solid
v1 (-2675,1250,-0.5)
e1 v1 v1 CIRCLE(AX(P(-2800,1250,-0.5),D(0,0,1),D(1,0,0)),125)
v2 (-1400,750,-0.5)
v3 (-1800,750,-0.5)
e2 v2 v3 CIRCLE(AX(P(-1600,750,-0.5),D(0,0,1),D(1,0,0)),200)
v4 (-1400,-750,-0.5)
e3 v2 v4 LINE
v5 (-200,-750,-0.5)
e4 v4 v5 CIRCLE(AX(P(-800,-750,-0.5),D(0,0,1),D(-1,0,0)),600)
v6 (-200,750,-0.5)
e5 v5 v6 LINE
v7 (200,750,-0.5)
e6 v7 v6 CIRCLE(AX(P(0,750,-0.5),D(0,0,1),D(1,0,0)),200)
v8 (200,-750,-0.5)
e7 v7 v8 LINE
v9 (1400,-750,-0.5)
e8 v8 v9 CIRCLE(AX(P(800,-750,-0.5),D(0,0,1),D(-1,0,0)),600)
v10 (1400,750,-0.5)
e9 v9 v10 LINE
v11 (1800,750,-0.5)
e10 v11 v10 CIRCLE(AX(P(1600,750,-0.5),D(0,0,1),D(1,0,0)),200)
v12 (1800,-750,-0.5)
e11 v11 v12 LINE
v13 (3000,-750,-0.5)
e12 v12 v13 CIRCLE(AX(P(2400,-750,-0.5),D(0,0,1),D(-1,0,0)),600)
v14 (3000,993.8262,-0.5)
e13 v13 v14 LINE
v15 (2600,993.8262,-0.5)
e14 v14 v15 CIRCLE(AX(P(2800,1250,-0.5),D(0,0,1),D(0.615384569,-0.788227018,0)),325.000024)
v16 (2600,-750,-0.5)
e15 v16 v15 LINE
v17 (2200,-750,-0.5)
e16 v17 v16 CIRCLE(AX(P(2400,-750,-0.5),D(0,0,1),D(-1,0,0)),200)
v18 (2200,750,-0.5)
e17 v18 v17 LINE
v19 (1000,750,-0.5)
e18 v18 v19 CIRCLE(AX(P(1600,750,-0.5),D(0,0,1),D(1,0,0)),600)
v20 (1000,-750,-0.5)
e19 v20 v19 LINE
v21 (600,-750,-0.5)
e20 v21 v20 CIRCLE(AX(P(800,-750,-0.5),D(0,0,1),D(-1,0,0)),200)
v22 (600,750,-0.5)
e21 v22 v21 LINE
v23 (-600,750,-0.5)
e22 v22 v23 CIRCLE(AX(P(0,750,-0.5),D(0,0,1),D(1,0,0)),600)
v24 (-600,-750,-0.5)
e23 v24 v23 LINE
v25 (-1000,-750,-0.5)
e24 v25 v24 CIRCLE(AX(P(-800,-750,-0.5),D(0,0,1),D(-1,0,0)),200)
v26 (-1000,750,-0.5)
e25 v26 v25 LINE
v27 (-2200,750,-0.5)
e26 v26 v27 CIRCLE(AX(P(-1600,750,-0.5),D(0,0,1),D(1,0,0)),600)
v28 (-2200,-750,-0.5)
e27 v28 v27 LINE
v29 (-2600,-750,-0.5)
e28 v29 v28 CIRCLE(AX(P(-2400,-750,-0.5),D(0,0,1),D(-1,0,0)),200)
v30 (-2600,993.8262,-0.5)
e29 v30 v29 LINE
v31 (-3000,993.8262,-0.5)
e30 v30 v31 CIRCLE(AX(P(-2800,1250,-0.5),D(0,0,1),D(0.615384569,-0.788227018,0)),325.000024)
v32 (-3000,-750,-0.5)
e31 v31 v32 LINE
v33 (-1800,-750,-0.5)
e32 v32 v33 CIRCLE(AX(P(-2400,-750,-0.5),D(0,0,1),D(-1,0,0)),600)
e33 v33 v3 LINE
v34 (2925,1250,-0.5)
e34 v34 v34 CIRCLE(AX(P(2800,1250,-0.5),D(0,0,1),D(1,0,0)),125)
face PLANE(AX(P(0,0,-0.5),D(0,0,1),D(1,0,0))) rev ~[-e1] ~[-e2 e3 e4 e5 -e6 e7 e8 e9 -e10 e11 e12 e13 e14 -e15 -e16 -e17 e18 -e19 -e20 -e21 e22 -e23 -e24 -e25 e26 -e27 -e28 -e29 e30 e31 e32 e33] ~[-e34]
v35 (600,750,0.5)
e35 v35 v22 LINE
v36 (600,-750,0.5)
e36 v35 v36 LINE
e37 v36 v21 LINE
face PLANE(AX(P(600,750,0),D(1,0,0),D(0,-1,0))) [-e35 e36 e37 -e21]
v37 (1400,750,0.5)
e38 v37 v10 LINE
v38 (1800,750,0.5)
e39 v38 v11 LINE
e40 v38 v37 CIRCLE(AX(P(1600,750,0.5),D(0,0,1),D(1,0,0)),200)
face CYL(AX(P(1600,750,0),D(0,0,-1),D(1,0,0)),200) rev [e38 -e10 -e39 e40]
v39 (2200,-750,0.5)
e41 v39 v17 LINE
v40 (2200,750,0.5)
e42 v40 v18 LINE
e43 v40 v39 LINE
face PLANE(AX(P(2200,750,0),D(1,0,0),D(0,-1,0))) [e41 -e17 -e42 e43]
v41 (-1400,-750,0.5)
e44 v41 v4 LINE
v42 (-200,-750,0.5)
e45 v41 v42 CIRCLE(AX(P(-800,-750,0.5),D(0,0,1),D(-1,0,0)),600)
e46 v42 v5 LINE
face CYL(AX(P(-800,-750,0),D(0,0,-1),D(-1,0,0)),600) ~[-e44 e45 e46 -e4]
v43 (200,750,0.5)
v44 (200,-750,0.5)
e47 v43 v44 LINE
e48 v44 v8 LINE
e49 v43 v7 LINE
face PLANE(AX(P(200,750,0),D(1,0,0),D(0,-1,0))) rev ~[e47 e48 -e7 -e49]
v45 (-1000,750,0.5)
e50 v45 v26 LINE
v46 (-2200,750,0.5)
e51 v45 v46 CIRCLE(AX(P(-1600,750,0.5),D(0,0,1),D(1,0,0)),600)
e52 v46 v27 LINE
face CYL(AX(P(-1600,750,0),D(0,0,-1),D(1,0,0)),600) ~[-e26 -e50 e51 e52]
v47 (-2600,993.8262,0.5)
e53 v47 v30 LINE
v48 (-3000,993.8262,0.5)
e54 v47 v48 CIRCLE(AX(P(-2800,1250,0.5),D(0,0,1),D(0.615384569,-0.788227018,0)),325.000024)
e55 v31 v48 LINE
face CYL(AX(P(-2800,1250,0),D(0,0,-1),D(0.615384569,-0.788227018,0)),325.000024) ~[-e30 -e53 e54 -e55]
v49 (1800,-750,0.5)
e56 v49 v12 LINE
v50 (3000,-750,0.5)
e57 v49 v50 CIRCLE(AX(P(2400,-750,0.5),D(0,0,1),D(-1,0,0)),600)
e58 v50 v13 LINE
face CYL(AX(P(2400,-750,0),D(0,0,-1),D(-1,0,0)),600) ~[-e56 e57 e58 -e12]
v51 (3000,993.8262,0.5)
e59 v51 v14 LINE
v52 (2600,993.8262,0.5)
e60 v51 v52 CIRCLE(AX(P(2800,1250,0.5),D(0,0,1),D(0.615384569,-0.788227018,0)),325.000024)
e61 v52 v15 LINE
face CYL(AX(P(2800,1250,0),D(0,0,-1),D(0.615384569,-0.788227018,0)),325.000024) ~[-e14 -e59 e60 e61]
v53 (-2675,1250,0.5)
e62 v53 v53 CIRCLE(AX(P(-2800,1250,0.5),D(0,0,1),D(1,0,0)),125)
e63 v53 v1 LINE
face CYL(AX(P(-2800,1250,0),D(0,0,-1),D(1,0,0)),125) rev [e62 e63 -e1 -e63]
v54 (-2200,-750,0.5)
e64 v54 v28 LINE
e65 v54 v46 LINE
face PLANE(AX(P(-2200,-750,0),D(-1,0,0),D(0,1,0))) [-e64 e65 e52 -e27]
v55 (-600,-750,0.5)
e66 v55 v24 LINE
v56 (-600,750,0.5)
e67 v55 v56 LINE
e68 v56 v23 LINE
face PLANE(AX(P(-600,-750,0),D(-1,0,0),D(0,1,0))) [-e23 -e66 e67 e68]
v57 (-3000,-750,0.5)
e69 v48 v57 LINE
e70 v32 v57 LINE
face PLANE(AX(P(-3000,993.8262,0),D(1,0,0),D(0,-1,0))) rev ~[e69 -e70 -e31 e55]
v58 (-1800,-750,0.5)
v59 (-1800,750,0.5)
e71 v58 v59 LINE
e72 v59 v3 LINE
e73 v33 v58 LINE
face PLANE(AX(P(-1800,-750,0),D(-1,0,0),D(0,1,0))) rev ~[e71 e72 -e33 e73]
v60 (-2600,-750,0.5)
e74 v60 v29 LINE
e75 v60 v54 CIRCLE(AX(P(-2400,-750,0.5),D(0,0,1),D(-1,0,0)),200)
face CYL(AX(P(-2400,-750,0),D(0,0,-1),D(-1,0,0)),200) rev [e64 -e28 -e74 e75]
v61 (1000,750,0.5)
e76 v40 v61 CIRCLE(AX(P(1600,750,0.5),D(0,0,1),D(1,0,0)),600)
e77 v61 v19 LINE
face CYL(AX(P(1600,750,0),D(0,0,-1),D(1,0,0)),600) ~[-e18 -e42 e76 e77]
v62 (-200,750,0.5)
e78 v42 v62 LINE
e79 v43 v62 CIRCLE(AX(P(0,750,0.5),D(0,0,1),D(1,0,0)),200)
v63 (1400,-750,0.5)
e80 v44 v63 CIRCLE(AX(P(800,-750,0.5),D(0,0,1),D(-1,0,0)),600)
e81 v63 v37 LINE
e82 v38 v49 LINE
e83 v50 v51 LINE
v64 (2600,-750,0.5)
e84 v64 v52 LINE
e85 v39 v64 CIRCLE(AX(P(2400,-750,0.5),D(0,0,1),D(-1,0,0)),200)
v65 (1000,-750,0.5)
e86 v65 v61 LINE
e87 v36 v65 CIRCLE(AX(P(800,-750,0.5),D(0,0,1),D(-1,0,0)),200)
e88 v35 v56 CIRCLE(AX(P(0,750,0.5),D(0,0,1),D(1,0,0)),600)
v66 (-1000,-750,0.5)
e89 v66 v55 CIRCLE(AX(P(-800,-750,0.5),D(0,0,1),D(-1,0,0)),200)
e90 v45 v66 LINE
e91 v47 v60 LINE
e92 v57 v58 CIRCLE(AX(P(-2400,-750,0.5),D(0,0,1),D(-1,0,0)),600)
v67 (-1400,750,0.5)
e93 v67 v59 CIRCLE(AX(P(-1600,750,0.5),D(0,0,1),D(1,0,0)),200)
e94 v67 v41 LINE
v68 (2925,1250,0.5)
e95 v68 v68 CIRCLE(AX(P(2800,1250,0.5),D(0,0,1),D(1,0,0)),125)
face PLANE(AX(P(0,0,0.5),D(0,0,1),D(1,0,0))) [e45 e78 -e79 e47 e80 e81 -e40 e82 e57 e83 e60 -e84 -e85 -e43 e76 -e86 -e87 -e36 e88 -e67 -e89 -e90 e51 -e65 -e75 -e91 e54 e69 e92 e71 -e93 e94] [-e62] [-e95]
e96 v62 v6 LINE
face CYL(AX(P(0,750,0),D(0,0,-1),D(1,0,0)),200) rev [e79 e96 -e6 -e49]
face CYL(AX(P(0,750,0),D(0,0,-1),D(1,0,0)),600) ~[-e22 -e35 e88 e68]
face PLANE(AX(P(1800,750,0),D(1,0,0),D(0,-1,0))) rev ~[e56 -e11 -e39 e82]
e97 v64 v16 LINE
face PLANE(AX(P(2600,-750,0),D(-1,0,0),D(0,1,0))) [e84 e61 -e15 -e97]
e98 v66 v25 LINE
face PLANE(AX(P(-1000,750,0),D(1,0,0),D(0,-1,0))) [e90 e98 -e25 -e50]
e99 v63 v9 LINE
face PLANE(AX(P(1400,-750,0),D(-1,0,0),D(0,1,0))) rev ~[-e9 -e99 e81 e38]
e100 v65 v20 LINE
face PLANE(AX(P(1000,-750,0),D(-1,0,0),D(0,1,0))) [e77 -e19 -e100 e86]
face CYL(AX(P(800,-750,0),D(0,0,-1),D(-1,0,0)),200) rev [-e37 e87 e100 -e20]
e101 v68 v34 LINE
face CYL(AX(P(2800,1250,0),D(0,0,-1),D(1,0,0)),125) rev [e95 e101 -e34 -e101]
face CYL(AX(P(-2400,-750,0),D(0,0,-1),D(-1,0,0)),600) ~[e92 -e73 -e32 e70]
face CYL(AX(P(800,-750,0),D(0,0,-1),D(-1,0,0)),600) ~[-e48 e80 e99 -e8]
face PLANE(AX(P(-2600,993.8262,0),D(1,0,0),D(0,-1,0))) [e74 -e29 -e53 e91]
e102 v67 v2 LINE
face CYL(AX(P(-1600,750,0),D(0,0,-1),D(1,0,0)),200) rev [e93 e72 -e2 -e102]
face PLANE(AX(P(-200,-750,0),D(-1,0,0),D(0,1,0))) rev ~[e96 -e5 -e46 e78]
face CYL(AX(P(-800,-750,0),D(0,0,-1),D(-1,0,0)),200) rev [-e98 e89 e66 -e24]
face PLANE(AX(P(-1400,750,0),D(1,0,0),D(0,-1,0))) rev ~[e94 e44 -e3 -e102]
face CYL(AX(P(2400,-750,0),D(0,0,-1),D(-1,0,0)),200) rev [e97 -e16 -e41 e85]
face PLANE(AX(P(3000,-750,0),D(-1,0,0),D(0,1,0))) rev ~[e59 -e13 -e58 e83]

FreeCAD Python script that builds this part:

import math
import FreeCAD as App
import Part
import Sketcher

doc = App.newDocument("Part")
body = doc.addObject("PartDesign::Body", "Body")

# Sketch on XY plane
sketch1 = body.newObject("Sketcher::SketchObject", "Sketch")
sketch1.AttachmentSupport = (doc.getObject("XY_Plane"), [""])
sketch1.MapMode = "FlatFace"
sketch1.addGeometry(Part.ArcOfCircle(Part.Circle(App.Vector(-2800, 1250, 0), App.Vector(0, 0, 1), 325), math.radians(-52), math.radians(232)), False)
sketch1.addGeometry(Part.LineSegment(App.Vector(-3000, 994, 0), App.Vector(-3000, -750, 0)), False)
sketch1.addGeometry(Part.ArcOfCircle(Part.Circle(App.Vector(-2400, -750, 0), App.Vector(0, 0, 1), 600), math.radians(180), math.radians(360)), False)
sketch1.addGeometry(Part.LineSegment(App.Vector(-1800, -750, 0), App.Vector(-1800, 750, 0)), False)
sketch1.addGeometry(Part.ArcOfCircle(Part.Circle(App.Vector(-1600, 750, 0), App.Vector(0, 0, 1), 200), math.radians(0), math.radians(180)), False)
sketch1.addGeometry(Part.LineSegment(App.Vector(-1400, 750, 0), App.Vector(-1400, -750, 0)), False)
sketch1.addGeometry(Part.ArcOfCircle(Part.Circle(App.Vector(-800, -750, 0), App.Vector(0, 0, 1), 600), math.radians(180), math.radians(360)), False)
sketch1.addGeometry(Part.LineSegment(App.Vector(-200, -750, 0), App.Vector(-200, 750, 0)), False)
sketch1.addGeometry(Part.ArcOfCircle(Part.Circle(App.Vector(0, 750, 0), App.Vector(0, 0, 1), 200), math.radians(0), math.radians(180)), False)
sketch1.addGeometry(Part.LineSegment(App.Vector(200, 750, 0), App.Vector(200, -750, 0)), False)
sketch1.addGeometry(Part.ArcOfCircle(Part.Circle(App.Vector(800, -750, 0), App.Vector(0, 0, 1), 600), math.radians(180), math.radians(360)), False)
sketch1.addGeometry(Part.LineSegment(App.Vector(1400, -750, 0), App.Vector(1400, 750, 0)), False)
sketch1.addGeometry(Part.ArcOfCircle(Part.Circle(App.Vector(1600, 750, 0), App.Vector(0, 0, 1), 200), math.radians(0), math.radians(180)), False)
sketch1.addGeometry(Part.LineSegment(App.Vector(1800, 750, 0), App.Vector(1800, -750, 0)), False)
sketch1.addGeometry(Part.ArcOfCircle(Part.Circle(App.Vector(2400, -750, 0), App.Vector(0, 0, 1), 600), math.radians(180), math.radians(360)), False)
sketch1.addGeometry(Part.LineSegment(App.Vector(3000, -750, 0), App.Vector(3000, 994, 0)), False)
sketch1.addGeometry(Part.ArcOfCircle(Part.Circle(App.Vector(2800, 1250, 0), App.Vector(0, 0, 1), 325), math.radians(-52), math.radians(232)), False)
sketch1.addGeometry(Part.LineSegment(App.Vector(2600, 994, 0), App.Vector(2600, -750, 0)), False)
sketch1.addGeometry(Part.ArcOfCircle(Part.Circle(App.Vector(2400, -750, 0), App.Vector(0, 0, 1), 200), math.radians(180), math.radians(360)), False)
sketch1.addGeometry(Part.LineSegment(App.Vector(2200, -750, 0), App.Vector(2200, 750, 0)), False)
sketch1.addGeometry(Part.ArcOfCircle(Part.Circle(App.Vector(1600, 750, 0), App.Vector(0, 0, 1), 600), math.radians(0), math.radians(180)), False)
sketch1.addGeometry(Part.LineSegment(App.Vector(1000, 750, 0), App.Vector(1000, -750, 0)), False)
sketch1.addGeometry(Part.ArcOfCircle(Part.Circle(App.Vector(800, -750, 0), App.Vector(0, 0, 1), 200), math.radians(180), math.radians(360)), False)
sketch1.addGeometry(Part.LineSegment(App.Vector(600, -750, 0), App.Vector(600, 750, 0)), False)
sketch1.addGeometry(Part.ArcOfCircle(Part.Circle(App.Vector(0, 750, 0), App.Vector(0, 0, 1), 600), math.radians(0), math.radians(180)), False)
sketch1.addGeometry(Part.LineSegment(App.Vector(-600, 750, 0), App.Vector(-600, -750, 0)), False)
sketch1.addGeometry(Part.ArcOfCircle(Part.Circle(App.Vector(-800, -750, 0), App.Vector(0, 0, 1), 200), math.radians(180), math.radians(360)), False)
sketch1.addGeometry(Part.LineSegment(App.Vector(-1000, -750, 0), App.Vector(-1000, 750, 0)), False)
sketch1.addGeometry(Part.ArcOfCircle(Part.Circle(App.Vector(-1600, 750, 0), App.Vector(0, 0, 1), 600), math.radians(0), math.radians(180)), False)
sketch1.addGeometry(Part.LineSegment(App.Vector(-2200, 750, 0), App.Vector(-2200, -750, 0)), False)
sketch1.addGeometry(Part.ArcOfCircle(Part.Circle(App.Vector(-2400, -750, 0), App.Vector(0, 0, 1), 200), math.radians(180), math.radians(360)), False)
sketch1.addGeometry(Part.LineSegment(App.Vector(-2600, -750, 0), App.Vector(-2600, 994, 0)), False)
sketch1.addGeometry(Part.Circle(App.Vector(-2800, 1250, 0), App.Vector(0, 0, 1), 125), False)
sketch1.addGeometry(Part.Circle(App.Vector(2800, 1250, 0), App.Vector(0, 0, 1), 125), False)
sketch1.addConstraint(Sketcher.Constraint("Coincident", 0, 2, 1, 1))
sketch1.addConstraint(Sketcher.Constraint("Tangent", 1, 2, 2, 1))
sketch1.addConstraint(Sketcher.Constraint("Tangent", 2, 2, 3, 1))
sketch1.addConstraint(Sketcher.Constraint("Tangent", 3, 2, 4, 2))
sketch1.addConstraint(Sketcher.Constraint("Tangent", 4, 1, 5, 1))
sketch1.addConstraint(Sketcher.Constraint("Tangent", 5, 2, 6, 1))
sketch1.addConstraint(Sketcher.Constraint("Tangent", 6, 2, 7, 1))
sketch1.addConstraint(Sketcher.Constraint("Tangent", 7, 2, 8, 2))
sketch1.addConstraint(Sketcher.Constraint("Tangent", 8, 1, 9, 1))
sketch1.addConstraint(Sketcher.Constraint("Tangent", 9, 2, 10, 1))
sketch1.addConstraint(Sketcher.Constraint("Tangent", 10, 2, 11, 1))
sketch1.addConstraint(Sketcher.Constraint("Tangent", 11, 2, 12, 2))
sketch1.addConstraint(Sketcher.Constraint("Tangent", 12, 1, 13, 1))
sketch1.addConstraint(Sketcher.Constraint("Tangent", 13, 2, 14, 1))
sketch1.addConstraint(Sketcher.Constraint("Tangent", 14, 2, 15, 1))
sketch1.addConstraint(Sketcher.Constraint("Coincident", 15, 2, 16, 1))
sketch1.addConstraint(Sketcher.Constraint("Coincident", 16, 2, 17, 1))
sketch1.addConstraint(Sketcher.Constraint("Tangent", 17, 2, 18, 2))
sketch1.addConstraint(Sketcher.Constraint("Tangent", 18, 1, 19, 1))
sketch1.addConstraint(Sketcher.Constraint("Tangent", 19, 2, 20, 1))
sketch1.addConstraint(Sketcher.Constraint("Tangent", 20, 2, 21, 1))
sketch1.addConstraint(Sketcher.Constraint("Tangent", 21, 2, 22, 2))
sketch1.addConstraint(Sketcher.Constraint("Tangent", 22, 1, 23, 1))
sketch1.addConstraint(Sketcher.Constraint("Tangent", 23, 2, 24, 1))
sketch1.addConstraint(Sketcher.Constraint("Tangent", 24, 2, 25, 1))
sketch1.addConstraint(Sketcher.Constraint("Tangent", 25, 2, 26, 2))
sketch1.addConstraint(Sketcher.Constraint("Tangent", 26, 1, 27, 1))
sketch1.addConstraint(Sketcher.Constraint("Tangent", 27, 2, 28, 1))
sketch1.addConstraint(Sketcher.Constraint("Tangent", 28, 2, 29, 1))
sketch1.addConstraint(Sketcher.Constraint("Tangent", 29, 2, 30, 2))
sketch1.addConstraint(Sketcher.Constraint("Tangent", 30, 1, 31, 1))
sketch1.addConstraint(Sketcher.Constraint("Coincident", 31, 2, 0, 1))
sketch1.addConstraint(Sketcher.Constraint("Vertical", 1))
sketch1.addConstraint(Sketcher.Constraint("Vertical", 3))
sketch1.addConstraint(Sketcher.Constraint("Vertical", 5))
sketch1.addConstraint(Sketcher.Constraint("Vertical", 7))
sketch1.addConstraint(Sketcher.Constraint("Vertical", 9))
sketch1.addConstraint(Sketcher.Constraint("Vertical", 11))
sketch1.addConstraint(Sketcher.Constraint("Vertical", 13))
sketch1.addConstraint(Sketcher.Constraint("Vertical", 15))
sketch1.addConstraint(Sketcher.Constraint("Vertical", 17))
sketch1.addConstraint(Sketcher.Constraint("Vertical", 19))
sketch1.addConstraint(Sketcher.Constraint("Vertical", 21))
sketch1.addConstraint(Sketcher.Constraint("Vertical", 23))
sketch1.addConstraint(Sketcher.Constraint("Vertical", 25))
sketch1.addConstraint(Sketcher.Constraint("Vertical", 27))
sketch1.addConstraint(Sketcher.Constraint("Vertical", 29))
sketch1.addConstraint(Sketcher.Constraint("Vertical", 31))
sketch1.addConstraint(Sketcher.Constraint("Coincident", 18, 3, 14, 3))
sketch1.addConstraint(Sketcher.Constraint("Coincident", 20, 3, 12, 3))
sketch1.addConstraint(Sketcher.Constraint("Coincident", 22, 3, 10, 3))
sketch1.addConstraint(Sketcher.Constraint("Coincident", 24, 3, 8, 3))
sketch1.addConstraint(Sketcher.Constraint("Coincident", 26, 3, 6, 3))
sketch1.addConstraint(Sketcher.Constraint("Coincident", 28, 3, 4, 3))
sketch1.addConstraint(Sketcher.Constraint("Coincident", 30, 3, 2, 3))
sketch1.addConstraint(Sketcher.Constraint("Coincident", 32, 3, 0, 3))
sketch1.addConstraint(Sketcher.Constraint("Coincident", 33, 3, 16, 3))
sketch1.addConstraint(Sketcher.Constraint("Equal", 2, 6))
sketch1.addConstraint(Sketcher.Constraint("Equal", 4, 8))
sketch1.addConstraint(Sketcher.Constraint("Equal", 6, 10))
sketch1.addConstraint(Sketcher.Constraint("Equal", 8, 12))
sketch1.addConstraint(Sketcher.Constraint("Equal", 10, 14))
sketch1.addConstraint(Sketcher.Constraint("Equal", 0, 16))
sketch1.addConstraint(Sketcher.Constraint("Equal", 12, 18))
sketch1.addConstraint(Sketcher.Constraint("Equal", 32, 33))
sketch1.addConstraint(Sketcher.Constraint("Symmetric", 7, 2, 9, 2, -1, 1))
sketch1.addConstraint(Sketcher.Constraint("Symmetric", 0, 3, 16, 3, -2))
sketch1.addConstraint(Sketcher.Constraint("Horizontal", 2, 3, 6, 3))
sketch1.addConstraint(Sketcher.Constraint("Horizontal", 4, 3, 8, 3))
sketch1.addConstraint(Sketcher.Constraint("Horizontal", 6, 3, 10, 3))
sketch1.addConstraint(Sketcher.Constraint("Horizontal", 8, 3, 12, 3))
sketch1.addConstraint(Sketcher.Constraint("Horizontal", 10, 3, 14, 3))
sketch1.addConstraint(Sketcher.Constraint("Horizontal", 15, 2, 16, 2))
sketch1.addConstraint(Sketcher.Constraint("Diameter", 32, 250.0))
sketch1.addConstraint(Sketcher.Constraint("Radius", 4, 200.0))
sketch1.addConstraint(Sketcher.Constraint("DistanceY", 3, 1, 3, 2, 1500.0))
sketch1.addConstraint(Sketcher.Constraint("Radius", 0, 325.0))
sketch1.addConstraint(Sketcher.Constraint("Radius", 2, 600.0))
sketch1.addConstraint(Sketcher.Constraint("DistanceY", 2, 3, 0, 3, 2000.0))
pad1 = body.newObject("PartDesign::Pad", "Pad")
pad1.Profile = sketch1
pad1.Length = 1
pad1.Midplane = True

doc.recompute()
